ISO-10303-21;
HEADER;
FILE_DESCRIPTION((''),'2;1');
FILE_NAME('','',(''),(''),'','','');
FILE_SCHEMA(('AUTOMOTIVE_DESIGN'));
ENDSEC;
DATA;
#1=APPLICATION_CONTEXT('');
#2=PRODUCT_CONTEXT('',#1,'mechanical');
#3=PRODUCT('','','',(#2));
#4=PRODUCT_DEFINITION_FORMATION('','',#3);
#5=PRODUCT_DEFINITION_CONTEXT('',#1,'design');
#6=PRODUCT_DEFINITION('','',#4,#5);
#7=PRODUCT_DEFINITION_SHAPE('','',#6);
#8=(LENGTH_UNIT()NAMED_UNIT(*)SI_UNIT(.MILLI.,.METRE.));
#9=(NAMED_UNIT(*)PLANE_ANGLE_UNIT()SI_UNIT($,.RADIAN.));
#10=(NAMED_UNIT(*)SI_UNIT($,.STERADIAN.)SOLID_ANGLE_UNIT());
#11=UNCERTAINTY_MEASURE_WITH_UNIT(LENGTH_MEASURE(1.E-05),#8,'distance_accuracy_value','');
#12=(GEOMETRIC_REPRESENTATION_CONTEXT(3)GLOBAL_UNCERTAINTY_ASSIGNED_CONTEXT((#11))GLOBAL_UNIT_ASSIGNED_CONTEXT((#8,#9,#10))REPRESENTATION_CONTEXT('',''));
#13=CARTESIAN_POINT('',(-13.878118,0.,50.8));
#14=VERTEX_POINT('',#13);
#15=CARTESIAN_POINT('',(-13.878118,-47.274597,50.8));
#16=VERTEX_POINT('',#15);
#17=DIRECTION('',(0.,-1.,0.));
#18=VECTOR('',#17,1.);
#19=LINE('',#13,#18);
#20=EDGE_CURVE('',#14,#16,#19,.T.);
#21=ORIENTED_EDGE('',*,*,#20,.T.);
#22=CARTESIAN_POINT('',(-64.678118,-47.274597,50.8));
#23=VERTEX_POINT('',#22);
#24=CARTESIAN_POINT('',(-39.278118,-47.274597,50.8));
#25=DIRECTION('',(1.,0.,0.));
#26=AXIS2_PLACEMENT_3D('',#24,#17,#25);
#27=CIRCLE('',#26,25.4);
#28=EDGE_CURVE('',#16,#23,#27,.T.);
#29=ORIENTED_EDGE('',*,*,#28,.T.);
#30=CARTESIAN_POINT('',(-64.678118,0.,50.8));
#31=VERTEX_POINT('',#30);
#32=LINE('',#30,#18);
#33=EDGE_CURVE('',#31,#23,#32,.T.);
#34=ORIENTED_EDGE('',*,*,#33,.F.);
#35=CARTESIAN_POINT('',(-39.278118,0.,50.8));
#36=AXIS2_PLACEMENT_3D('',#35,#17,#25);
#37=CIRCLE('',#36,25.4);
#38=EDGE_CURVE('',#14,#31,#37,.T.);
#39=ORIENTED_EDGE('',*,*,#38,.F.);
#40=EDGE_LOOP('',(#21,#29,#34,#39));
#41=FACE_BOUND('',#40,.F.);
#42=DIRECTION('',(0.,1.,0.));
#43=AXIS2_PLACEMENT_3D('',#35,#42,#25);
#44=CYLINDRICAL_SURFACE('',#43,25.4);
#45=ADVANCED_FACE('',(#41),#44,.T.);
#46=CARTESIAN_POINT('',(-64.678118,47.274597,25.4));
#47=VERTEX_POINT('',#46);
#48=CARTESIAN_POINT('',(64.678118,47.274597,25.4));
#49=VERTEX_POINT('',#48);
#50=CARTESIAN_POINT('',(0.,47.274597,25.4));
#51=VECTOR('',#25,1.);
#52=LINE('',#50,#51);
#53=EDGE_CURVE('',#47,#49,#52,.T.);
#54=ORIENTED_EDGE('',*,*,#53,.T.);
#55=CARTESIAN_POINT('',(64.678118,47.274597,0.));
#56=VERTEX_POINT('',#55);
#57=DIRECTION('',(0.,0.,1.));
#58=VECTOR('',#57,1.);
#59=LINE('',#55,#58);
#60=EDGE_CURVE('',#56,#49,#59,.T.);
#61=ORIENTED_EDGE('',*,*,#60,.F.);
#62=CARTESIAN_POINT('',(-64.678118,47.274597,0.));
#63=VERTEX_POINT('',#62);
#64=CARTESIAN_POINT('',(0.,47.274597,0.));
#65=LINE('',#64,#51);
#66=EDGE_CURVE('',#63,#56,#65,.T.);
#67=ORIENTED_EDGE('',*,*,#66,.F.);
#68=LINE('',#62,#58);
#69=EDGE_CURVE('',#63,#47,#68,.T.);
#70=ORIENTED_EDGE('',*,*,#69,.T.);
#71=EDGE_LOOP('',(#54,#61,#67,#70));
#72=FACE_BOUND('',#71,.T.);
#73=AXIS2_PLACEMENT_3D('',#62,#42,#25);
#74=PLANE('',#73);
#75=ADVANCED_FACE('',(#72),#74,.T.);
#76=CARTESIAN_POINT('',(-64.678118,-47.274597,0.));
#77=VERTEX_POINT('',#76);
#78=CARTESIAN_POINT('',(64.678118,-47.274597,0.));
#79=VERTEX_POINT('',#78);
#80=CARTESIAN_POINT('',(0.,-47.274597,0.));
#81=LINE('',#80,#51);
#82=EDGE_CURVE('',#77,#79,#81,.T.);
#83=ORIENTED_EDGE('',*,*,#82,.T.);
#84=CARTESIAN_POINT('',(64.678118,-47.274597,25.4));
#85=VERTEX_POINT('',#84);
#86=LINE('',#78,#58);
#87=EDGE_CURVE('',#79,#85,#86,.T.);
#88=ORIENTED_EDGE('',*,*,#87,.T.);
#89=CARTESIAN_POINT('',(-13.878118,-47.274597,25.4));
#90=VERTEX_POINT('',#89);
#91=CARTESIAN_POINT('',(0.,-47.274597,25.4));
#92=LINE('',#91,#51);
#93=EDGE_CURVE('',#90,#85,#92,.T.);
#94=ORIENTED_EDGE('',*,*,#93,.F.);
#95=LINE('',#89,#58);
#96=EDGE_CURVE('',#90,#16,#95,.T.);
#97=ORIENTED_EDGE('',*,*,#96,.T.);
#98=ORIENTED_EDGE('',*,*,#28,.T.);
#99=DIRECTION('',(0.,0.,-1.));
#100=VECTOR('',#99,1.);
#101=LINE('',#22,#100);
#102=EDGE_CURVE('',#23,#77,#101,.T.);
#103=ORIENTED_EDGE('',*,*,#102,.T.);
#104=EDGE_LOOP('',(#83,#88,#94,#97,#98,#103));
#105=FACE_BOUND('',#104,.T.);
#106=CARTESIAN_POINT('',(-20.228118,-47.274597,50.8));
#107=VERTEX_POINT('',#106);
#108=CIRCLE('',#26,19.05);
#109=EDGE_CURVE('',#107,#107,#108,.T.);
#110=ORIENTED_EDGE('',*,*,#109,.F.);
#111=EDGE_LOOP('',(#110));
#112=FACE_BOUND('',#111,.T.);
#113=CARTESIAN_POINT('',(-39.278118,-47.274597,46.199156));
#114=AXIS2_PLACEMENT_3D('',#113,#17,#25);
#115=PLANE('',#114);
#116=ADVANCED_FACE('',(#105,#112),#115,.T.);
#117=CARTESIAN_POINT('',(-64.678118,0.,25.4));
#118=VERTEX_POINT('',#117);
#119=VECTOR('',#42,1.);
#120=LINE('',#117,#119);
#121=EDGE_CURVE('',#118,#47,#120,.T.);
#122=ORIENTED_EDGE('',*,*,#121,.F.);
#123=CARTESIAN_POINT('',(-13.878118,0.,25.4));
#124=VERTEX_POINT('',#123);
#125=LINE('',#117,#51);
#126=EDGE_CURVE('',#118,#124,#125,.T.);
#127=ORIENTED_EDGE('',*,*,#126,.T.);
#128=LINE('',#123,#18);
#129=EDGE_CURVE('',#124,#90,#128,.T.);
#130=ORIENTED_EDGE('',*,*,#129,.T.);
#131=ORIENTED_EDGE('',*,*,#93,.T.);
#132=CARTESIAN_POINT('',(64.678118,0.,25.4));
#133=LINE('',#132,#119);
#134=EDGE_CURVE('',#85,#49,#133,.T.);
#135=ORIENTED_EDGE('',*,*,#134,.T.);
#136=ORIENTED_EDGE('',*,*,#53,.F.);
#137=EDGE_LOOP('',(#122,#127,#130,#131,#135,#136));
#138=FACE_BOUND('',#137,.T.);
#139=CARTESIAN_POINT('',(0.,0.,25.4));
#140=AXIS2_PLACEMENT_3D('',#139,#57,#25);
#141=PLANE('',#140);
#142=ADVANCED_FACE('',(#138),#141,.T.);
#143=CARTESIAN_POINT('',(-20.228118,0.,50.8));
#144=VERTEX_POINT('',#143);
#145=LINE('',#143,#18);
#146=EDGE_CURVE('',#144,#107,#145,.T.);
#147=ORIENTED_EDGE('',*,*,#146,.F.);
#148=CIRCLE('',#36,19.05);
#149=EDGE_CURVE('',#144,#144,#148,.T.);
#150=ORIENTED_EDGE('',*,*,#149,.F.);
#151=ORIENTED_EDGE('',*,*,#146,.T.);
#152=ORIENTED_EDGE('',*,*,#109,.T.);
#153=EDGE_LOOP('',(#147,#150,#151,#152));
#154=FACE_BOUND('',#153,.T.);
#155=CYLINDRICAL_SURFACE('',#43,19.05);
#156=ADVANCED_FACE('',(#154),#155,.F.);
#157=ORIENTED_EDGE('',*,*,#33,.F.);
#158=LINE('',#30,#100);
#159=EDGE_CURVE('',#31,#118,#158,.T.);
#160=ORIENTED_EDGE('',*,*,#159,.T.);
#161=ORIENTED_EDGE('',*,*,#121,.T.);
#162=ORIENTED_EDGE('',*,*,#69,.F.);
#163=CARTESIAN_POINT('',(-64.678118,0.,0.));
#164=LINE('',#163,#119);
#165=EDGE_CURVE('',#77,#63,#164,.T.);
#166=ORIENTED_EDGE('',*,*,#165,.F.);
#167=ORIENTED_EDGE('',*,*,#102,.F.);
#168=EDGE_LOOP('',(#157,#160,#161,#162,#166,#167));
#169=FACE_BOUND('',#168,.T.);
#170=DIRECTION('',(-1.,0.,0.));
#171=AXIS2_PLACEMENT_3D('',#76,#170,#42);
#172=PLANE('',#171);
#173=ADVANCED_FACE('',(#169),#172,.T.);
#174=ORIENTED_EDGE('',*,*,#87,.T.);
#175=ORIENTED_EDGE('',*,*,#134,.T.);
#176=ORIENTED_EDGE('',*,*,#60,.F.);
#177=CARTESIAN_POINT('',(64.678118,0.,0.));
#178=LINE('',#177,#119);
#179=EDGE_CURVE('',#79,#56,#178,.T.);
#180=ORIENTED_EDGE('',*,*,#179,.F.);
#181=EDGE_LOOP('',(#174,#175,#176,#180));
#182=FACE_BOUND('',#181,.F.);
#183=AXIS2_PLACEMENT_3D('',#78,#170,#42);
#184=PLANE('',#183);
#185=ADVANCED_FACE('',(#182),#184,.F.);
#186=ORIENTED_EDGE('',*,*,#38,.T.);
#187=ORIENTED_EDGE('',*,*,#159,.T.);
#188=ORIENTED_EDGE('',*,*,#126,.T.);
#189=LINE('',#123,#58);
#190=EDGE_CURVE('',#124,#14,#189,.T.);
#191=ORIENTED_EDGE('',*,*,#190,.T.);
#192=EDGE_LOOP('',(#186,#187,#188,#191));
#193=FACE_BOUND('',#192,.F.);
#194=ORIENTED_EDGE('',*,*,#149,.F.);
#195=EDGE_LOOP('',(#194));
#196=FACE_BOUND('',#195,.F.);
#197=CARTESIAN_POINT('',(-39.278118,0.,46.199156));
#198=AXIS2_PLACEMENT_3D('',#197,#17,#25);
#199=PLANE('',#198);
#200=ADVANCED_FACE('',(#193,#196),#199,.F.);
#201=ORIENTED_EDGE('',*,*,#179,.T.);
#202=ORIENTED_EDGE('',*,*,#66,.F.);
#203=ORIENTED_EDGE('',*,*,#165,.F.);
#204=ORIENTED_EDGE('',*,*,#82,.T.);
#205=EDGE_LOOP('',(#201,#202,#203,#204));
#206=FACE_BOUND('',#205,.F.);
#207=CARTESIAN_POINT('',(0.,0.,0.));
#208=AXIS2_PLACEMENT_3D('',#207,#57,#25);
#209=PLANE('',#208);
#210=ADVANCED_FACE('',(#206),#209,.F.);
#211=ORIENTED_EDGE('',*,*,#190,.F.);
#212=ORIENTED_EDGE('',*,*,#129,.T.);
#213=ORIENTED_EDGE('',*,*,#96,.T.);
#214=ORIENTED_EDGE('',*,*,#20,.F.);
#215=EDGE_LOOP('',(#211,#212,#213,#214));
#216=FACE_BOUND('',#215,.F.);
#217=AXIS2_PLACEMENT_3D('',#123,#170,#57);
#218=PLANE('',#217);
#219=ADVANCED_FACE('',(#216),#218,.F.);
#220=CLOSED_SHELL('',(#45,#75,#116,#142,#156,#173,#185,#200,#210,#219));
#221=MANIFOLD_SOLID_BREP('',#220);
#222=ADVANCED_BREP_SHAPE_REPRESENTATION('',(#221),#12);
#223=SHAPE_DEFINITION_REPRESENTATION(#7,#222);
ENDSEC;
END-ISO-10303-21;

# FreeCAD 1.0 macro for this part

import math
import FreeCAD as App
import Part
import Sketcher

V = App.Vector
Q = App.Units.Quantity

doc = App.newDocument("Part")
body = doc.addObject("PartDesign::Body", "Body")

sketch1 = body.newObject("Sketcher::SketchObject", "Sketch")
sketch1.AttachmentSupport = (doc.getObject("XY_Plane"), [""])
sketch1.MapMode = "FlatFace"
sketch1.addGeometry([
    Part.LineSegment(V(-65, 47, 0), V(-65, -47, 0)),
    Part.LineSegment(V(-65, -47, 0), V(65, -47, 0)),
    Part.LineSegment(V(65, -47, 0), V(65, 47, 0)),
    Part.LineSegment(V(65, 47, 0), V(-65, 47, 0)),
], False)
sketch1.addConstraint([
    Sketcher.Constraint("Coincident", 0, 2, 1, 1),
    Sketcher.Constraint("Coincident", 1, 2, 2, 1),
    Sketcher.Constraint("Coincident", 2, 2, 3, 1),
    Sketcher.Constraint("Coincident", 3, 2, 0, 1),
    Sketcher.Constraint("Vertical", 0),
    Sketcher.Constraint("Horizontal", 1),
    Sketcher.Constraint("Vertical", 2),
    Sketcher.Constraint("Horizontal", 3),
    Sketcher.Constraint("Symmetric", 0, 2, 2, 2, -1, 1),
    Sketcher.Constraint("DistanceX", 1, 1, 1, 2, 129.356236),
    Sketcher.Constraint("DistanceY", 0, 2, 0, 1, 94.549194),
])
pad1 = body.newObject("PartDesign::Pad", "Pad")
pad1.Profile = sketch1
pad1.Length = Q("1 in")

sketch2 = body.newObject("Sketcher::SketchObject", "Sketch001")
sketch2.AttachmentSupport = (doc.getObject("XZ_Plane"), [""])
sketch2.MapMode = "FlatFace"
sketch2.addGeometry([
    Part.LineSegment(V(-14, 25, 0), V(-14, 51, 0)),
    Part.ArcOfCircle(Part.Circle(V(-39, 51, 0), V(0, 0, 1), 25), math.radians(0), math.radians(180)),
    Part.LineSegment(V(-65, 51, 0), V(-65, 25, 0)),
    Part.LineSegment(V(-65, 25, 0), V(-14, 25, 0)),
    Part.Circle(V(-39, 51, 0), V(0, 0, 1), 19),
], False)
sketch2.addConstraint([
    Sketcher.Constraint("Tangent", 0, 2, 1, 1),
    Sketcher.Constraint("Tangent", 1, 2, 2, 1),
    Sketcher.Constraint("Coincident", 2, 2, 3, 1),
    Sketcher.Constraint("Coincident", 3, 2, 0, 1),
    Sketcher.Constraint("Vertical", 0),
    Sketcher.Constraint("Vertical", 2),
    Sketcher.Constraint("Horizontal", 3),
    Sketcher.Constraint("Coincident", 4, 3, 1, 3),
    Sketcher.Constraint("Radius", 1, Q("1 in")),
    Sketcher.Constraint("Diameter", 4, Q("1.5 in")),
    Sketcher.Constraint("DistanceY", 0, 1, 0, 2, Q("1 in")),
    Sketcher.Constraint("DistanceY", -1, 1, 1, 3, Q("2 in")),
    Sketcher.Constraint("DistanceX", 0, 2, -1, 1, 13.878118),
])
pad2 = body.newObject("PartDesign::Pad", "Pad001")
pad2.Profile = sketch2
pad2.Length = 47.274597

doc.recompute()
